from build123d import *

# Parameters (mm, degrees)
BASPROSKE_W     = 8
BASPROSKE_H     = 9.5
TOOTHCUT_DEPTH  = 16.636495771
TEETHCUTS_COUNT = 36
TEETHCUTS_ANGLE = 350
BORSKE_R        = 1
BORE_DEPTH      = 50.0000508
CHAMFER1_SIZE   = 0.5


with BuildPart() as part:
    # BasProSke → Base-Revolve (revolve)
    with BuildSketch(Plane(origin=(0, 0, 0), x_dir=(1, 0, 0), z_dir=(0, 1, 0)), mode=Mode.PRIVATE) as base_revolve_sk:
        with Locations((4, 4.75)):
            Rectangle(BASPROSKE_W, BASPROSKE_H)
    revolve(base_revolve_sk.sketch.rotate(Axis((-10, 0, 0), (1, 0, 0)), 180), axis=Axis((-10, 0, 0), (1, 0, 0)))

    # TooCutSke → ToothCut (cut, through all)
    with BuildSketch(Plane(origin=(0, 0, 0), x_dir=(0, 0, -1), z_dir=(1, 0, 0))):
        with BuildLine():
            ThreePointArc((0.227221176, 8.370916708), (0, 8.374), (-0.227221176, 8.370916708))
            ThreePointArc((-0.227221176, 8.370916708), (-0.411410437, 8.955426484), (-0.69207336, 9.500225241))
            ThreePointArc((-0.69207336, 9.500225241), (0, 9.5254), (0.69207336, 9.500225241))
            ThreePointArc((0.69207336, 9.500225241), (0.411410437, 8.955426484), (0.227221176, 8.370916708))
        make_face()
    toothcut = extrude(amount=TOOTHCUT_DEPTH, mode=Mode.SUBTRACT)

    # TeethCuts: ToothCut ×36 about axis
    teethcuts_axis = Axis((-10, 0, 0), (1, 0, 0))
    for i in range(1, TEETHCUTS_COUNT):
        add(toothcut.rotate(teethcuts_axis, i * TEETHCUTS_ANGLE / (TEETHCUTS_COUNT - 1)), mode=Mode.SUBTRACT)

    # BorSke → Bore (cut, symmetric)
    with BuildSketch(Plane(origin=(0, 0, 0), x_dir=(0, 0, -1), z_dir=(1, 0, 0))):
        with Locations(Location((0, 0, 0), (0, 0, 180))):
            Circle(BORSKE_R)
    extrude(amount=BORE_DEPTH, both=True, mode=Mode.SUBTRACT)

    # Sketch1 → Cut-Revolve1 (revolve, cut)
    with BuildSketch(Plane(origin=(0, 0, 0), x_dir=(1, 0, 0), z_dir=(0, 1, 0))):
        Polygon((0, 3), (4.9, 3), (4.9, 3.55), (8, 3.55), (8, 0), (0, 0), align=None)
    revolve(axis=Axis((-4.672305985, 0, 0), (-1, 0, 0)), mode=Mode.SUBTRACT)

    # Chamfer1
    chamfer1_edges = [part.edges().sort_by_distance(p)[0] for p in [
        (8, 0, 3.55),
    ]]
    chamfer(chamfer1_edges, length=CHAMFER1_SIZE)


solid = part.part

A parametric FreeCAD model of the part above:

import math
import FreeCAD as App
import Part
import Sketcher

V = App.Vector
Q = App.Units.Quantity


def edges_at(feature, points):
    """Names of the edges that pass closest to the given points."""
    edges = feature.Shape.Edges
    near = lambda p: min(range(len(edges)), key=lambda i: edges[i].distToShape(Part.Vertex(*p))[0])
    return sorted({f"Edge{near(p) + 1}" for p in points})

doc = App.newDocument("Part")
body = doc.addObject("PartDesign::Body", "Body")

# Sketch on XZ plane
sketch1 = body.newObject("Sketcher::SketchObject", "Sketch")
sketch1.AttachmentSupport = (doc.getObject("XZ_Plane"), [""])
sketch1.MapMode = "FlatFace"
sketch1.addGeometry([
    Part.LineSegment(V(0, -10, 0), V(0, 0, 0)),
    Part.LineSegment(V(0, 0, 0), V(8, 0, 0)),
    Part.LineSegment(V(8, 0, 0), V(8, -10, 0)),
    Part.LineSegment(V(8, -10, 0), V(0, -10, 0)),
], False)
sketch1.addConstraint([
    Sketcher.Constraint("Coincident", 0, 2, 1, 1),
    Sketcher.Constraint("Coincident", 1, 2, 2, 1),
    Sketcher.Constraint("Coincident", 2, 2, 3, 1),
    Sketcher.Constraint("Coincident", 3, 2, 0, 1),
    Sketcher.Constraint("Vertical", 0),
    Sketcher.Constraint("Horizontal", 1),
    Sketcher.Constraint("Vertical", 2),
    Sketcher.Constraint("Horizontal", 3),
    Sketcher.Constraint("Coincident", 0, 2, -1, 1),
    Sketcher.Constraint("DistanceX", 1, 1, 1, 2, Q("8 mm")),
    Sketcher.Constraint("DistanceY", 0, 1, 0, 2, Q("9.5 mm")),
])
revolution = body.newObject("PartDesign::Revolution", "Revolution")
revolution.Profile = sketch1
revolution.ReferenceAxis = (sketch1, ["H_Axis"])
revolution.Angle = 360

# Sketch on YZ plane
sketch2 = body.newObject("Sketcher::SketchObject", "Sketch001")
sketch2.AttachmentSupport = (doc.getObject("YZ_Plane"), [""])
sketch2.MapMode = "FlatFace"
sketch2.addGeometry([
    Part.ArcOfCircle(Part.Circle(V(0, 0, 0), V(0, 0, 1), 8.37), math.radians(-1.55), math.radians(1.55)),
    Part.ArcOfCircle(Part.Circle(V(7.59, -3.74, 0), V(0, 0, 1), 3.6), math.radians(57.86), math.radians(77.39)),
    Part.ArcOfCircle(Part.Circle(V(0, 0, 0), V(0, 0, 1), 9.53), math.radians(-4.17), math.radians(4.17)),
    Part.ArcOfCircle(Part.Circle(V(7.59, 3.74, 0), V(0, 0, 1), 3.6), math.radians(-77.39), math.radians(-57.86)),
], False)
sketch2.addConstraint([
    Sketcher.Constraint("Coincident", 0, 1, 1, 2),
    Sketcher.Constraint("Coincident", 1, 1, 2, 1),
    Sketcher.Constraint("Coincident", 2, 2, 3, 2),
    Sketcher.Constraint("Coincident", 3, 1, 0, 2),
    Sketcher.Constraint("Coincident", 0, 3, -1, 1),
    Sketcher.Constraint("Coincident", 2, 3, -1, 1),
    Sketcher.Constraint("Equal", 1, 3),
    Sketcher.Constraint("Symmetric", 1, 3, 3, 3, -1),
    Sketcher.Constraint("Radius", 1, Q("3.6 mm")),
    Sketcher.Constraint("Radius", 0, Q("8.373999 mm")),
    Sketcher.Constraint("Radius", 2, Q("9.5254 mm")),
    Sketcher.Constraint("DistanceX", 1, 3, 1, 1, Q("1.915102 mm")),
    Sketcher.Constraint("DistanceY", 0, 1, -1, 1, Q("0.227221 mm")),
])
pocket1 = body.newObject("PartDesign::Pocket", "Pocket")
pocket1.Profile = sketch2
pocket1.Type = "ThroughAll"
pocket1.Reversed = True
doc.recompute()

polarpattern = body.newObject("PartDesign::PolarPattern", "PolarPattern")
polarpattern.Originals = [pocket1]
polarpattern.Axis = (doc.getObject("X_Axis"), [""])
polarpattern.Angle = 360
polarpattern.Occurrences = 36
body.Tip = polarpattern

# Sketch on YZ plane
sketch3 = body.newObject("Sketcher::SketchObject", "Sketch002")
sketch3.AttachmentSupport = (doc.getObject("YZ_Plane"), [""])
sketch3.MapMode = "FlatFace"
sketch3.addGeometry(Part.Circle(V(0, 0, 0), V(0, 0, 1), 1), False)
sketch3.addConstraint([
    Sketcher.Constraint("Coincident", 0, 3, -1, 1),
    Sketcher.Constraint("Diameter", 0, Q("2 mm")),
])
pocket2 = body.newObject("PartDesign::Pocket", "Pocket001")
pocket2.Profile = sketch3
pocket2.Length = 100.000102
pocket2.Midplane = True

# Sketch on XZ plane
sketch4 = body.newObject("Sketcher::SketchObject", "Sketch003")
sketch4.AttachmentSupport = (doc.getObject("XZ_Plane"), [""])
sketch4.MapMode = "FlatFace"
sketch4.addGeometry([
    Part.LineSegment(V(4.9, -3, 0), V(0, -3, 0)),  # 0
    Part.LineSegment(V(0, -3, 0), V(0, 0, 0)),  # 1
    Part.LineSegment(V(0, 0, 0), V(8, 0, 0)),  # 2
    Part.LineSegment(V(8, 0, 0), V(8, -3.5, 0)),  # 3
    Part.LineSegment(V(8, -3.5, 0), V(4.9, -3.5, 0)),  # 4
    Part.LineSegment(V(4.9, -3.5, 0), V(4.9, -3, 0)),  # 5
], False)
sketch4.addConstraint([
    Sketcher.Constraint("Coincident", 0, 2, 1, 1),
    Sketcher.Constraint("Coincident", 1, 2, 2, 1),
    Sketcher.Constraint("Coincident", 2, 2, 3, 1),
    Sketcher.Constraint("Coincident", 3, 2, 4, 1),
    Sketcher.Constraint("Coincident", 4, 2, 5, 1),
    Sketcher.Constraint("Coincident", 5, 2, 0, 1),
    Sketcher.Constraint("Horizontal", 0),
    Sketcher.Constraint("Vertical", 1),
    Sketcher.Constraint("Horizontal", 2),
    Sketcher.Constraint("Vertical", 3),
    Sketcher.Constraint("Horizontal", 4),
    Sketcher.Constraint("Vertical", 5),
    Sketcher.Constraint("Coincident", 1, 2, -1, 1),
    Sketcher.Constraint("DistanceX", 2, 1, 2, 2, Q("8 mm")),
    Sketcher.Constraint("DistanceY", 1, 1, 1, 2, Q("3 mm")),
    Sketcher.Constraint("DistanceX", 0, 2, 0, 1, Q("4.9 mm")),
    Sketcher.Constraint("DistanceY", 3, 2, 3, 1, Q("3.55 mm")),
])
groove = body.newObject("PartDesign::Groove", "Groove")
groove.Profile = sketch4
groove.ReferenceAxis = (sketch4, ["H_Axis"])
groove.Angle = 360
doc.recompute()

chamfer = body.newObject("PartDesign::Chamfer", "Chamfer")
chamfer.Base = (groove, edges_at(groove, [(8, 0, 3.55)]))
chamfer.Size = 0.5

doc.recompute()
